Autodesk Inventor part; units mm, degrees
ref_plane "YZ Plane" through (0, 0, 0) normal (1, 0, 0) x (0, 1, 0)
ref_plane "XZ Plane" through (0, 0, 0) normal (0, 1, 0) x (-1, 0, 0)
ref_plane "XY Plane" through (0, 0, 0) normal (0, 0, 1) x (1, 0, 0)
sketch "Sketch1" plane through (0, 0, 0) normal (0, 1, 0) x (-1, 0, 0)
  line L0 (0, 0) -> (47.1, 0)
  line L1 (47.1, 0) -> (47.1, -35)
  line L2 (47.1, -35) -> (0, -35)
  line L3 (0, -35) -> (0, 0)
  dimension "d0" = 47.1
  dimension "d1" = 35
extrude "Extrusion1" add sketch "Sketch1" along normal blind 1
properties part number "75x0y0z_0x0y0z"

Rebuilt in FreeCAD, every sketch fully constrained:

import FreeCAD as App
import Part
import Sketcher
Q = App.Units.Quantity

doc = App.newDocument("Part")
params = doc.addObject("Spreadsheet::Sheet", "Params")
for row, (alias, value) in enumerate([
    ("sketch1_height", "35 mm"),
    ("sketch1_width", "47.1 mm"),
    ("pad1_length", "1 mm"),
], start=1):
    params.set(f"A{row}", alias)
    params.set(f"B{row}", "=" + value)
    params.setAlias(f"B{row}", alias)

body = doc.addObject("PartDesign::Body", "Body")

# Sketch on XZ plane
sketch1 = body.newObject("Sketcher::SketchObject", "Sketch")
sketch1.AttachmentSupport = (doc.getObject("XZ_Plane"), [""])
sketch1.MapMode = "FlatFace"
sketch1.addGeometry([
    Part.LineSegment(App.Vector(-47.1, 0, 0), App.Vector(0, 0, 0)),
    Part.LineSegment(App.Vector(0, 0, 0), App.Vector(0, -35, 0)),
    Part.LineSegment(App.Vector(0, -35, 0), App.Vector(-47.1, -35, 0)),
    Part.LineSegment(App.Vector(-47.1, -35, 0), App.Vector(-47.1, 0, 0)),
], False)
sketch1.addConstraint([
    Sketcher.Constraint("Coincident", 0, 2, 1, 1),
    Sketcher.Constraint("Coincident", 1, 2, 2, 1),
    Sketcher.Constraint("Coincident", 2, 2, 3, 1),
    Sketcher.Constraint("Coincident", 3, 2, 0, 1),
    Sketcher.Constraint("Horizontal", 0),
    Sketcher.Constraint("Vertical", 1),
    Sketcher.Constraint("Horizontal", 2),
    Sketcher.Constraint("Vertical", 3),
    Sketcher.Constraint("Coincident", 0, 2, -1, 1),
    Sketcher.Constraint("DistanceY", 1, 2, 1, 1, Q("35 mm")),
    Sketcher.Constraint("DistanceX", 0, 1, 0, 2, Q("47.1 mm")),
])
sketch1.setExpression("Constraints[9]", "Params.sketch1_height")
sketch1.setExpression("Constraints[10]", "Params.sketch1_width")
pad1 = body.newObject("PartDesign::Pad", "Pad")
pad1.Profile = sketch1
pad1.setExpression("Length", "Params.pad1_length")
pad1.Reversed = True

doc.recompute()
